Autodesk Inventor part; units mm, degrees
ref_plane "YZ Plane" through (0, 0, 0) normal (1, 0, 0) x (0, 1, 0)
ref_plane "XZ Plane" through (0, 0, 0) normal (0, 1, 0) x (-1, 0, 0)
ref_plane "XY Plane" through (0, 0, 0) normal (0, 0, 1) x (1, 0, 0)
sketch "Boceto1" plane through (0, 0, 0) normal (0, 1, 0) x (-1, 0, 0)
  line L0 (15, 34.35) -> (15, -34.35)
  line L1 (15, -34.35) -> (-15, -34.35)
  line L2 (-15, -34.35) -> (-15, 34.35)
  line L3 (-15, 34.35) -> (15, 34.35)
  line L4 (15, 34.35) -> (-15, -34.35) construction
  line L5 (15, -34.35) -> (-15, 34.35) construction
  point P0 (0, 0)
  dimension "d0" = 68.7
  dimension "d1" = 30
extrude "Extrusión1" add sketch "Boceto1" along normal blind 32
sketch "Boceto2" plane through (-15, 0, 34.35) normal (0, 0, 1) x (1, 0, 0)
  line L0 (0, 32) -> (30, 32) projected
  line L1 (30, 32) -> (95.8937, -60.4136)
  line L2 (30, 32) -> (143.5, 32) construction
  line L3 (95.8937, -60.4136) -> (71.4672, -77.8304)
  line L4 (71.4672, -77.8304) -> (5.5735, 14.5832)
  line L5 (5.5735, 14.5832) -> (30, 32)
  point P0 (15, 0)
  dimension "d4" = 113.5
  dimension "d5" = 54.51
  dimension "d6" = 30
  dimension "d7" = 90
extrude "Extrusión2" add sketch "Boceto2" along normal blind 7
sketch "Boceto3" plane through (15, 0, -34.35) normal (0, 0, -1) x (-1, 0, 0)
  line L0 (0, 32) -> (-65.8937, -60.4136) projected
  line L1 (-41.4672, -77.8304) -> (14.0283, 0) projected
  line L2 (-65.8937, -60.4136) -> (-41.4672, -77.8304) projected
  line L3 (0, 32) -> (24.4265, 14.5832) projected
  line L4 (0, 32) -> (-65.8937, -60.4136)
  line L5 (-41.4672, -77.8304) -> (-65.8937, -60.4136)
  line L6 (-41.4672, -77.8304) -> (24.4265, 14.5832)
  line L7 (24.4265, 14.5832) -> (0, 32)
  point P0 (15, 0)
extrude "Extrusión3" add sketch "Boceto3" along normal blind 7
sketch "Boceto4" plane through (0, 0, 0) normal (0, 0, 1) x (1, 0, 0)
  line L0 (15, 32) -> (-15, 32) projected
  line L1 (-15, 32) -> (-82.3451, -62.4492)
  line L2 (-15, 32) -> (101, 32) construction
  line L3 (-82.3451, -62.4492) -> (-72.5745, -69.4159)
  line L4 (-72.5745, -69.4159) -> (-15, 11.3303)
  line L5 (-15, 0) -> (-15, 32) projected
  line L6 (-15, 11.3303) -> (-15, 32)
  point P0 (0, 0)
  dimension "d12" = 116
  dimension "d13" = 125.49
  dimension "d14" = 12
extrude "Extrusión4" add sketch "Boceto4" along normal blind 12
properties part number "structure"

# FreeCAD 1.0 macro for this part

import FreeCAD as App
import Part
import Sketcher

V = App.Vector
Q = App.Units.Quantity


def add_polygon(sketch, points):
    """Adds a closed chain of lines whose ends are joined by coincident constraints."""
    first, n = sketch.GeometryCount, len(points)
    for a, b in zip(points, points[1:] + points[:1]):
        sketch.addGeometry(Part.LineSegment(App.Vector(*a, 0), App.Vector(*b, 0)), False)
    for i in range(n):
        sketch.addConstraint(Sketcher.Constraint("Coincident", first + i, 2, first + (i + 1) % n, 1))

doc = App.newDocument("Part")
body = doc.addObject("PartDesign::Body", "Body")

# Sketch on XZ plane
sketch1 = body.newObject("Sketcher::SketchObject", "Sketch")
sketch1.AttachmentSupport = (doc.getObject("XZ_Plane"), [""])
sketch1.MapMode = "FlatFace"
add_polygon(sketch1, [(-15, -34), (-15, 34), (15, 34), (15, -34)])  # lines 0-3
sketch1.addConstraint([
    Sketcher.Constraint("Vertical", 0),
    Sketcher.Constraint("Horizontal", 1),
    Sketcher.Constraint("Vertical", 2),
    Sketcher.Constraint("Horizontal", 3),
    Sketcher.Constraint("Symmetric", 0, 2, 2, 2, -1, 1),
    Sketcher.Constraint("DistanceX", 1, 1, 1, 2, 30.0),
    Sketcher.Constraint("DistanceY", 0, 1, 0, 2, 68.7),
])
pad1 = body.newObject("PartDesign::Pad", "Pad")
pad1.Profile = sketch1
pad1.Length = 32
pad1.Reversed = True

# Sketch on XY plane
sketch2 = body.newObject("Sketcher::SketchObject", "Sketch001")
sketch2.AttachmentSupport = (doc.getObject("XY_Plane"), [""])
sketch2.MapMode = "FlatFace"
sketch2.AttachmentOffset = App.Placement(V(0, 0, 34.35), App.Rotation())
add_polygon(sketch2, [(81, -60), (15, 32), (-9, 15), (56, -78)])  # lines 0-3
sketch2.addConstraint([
    Sketcher.Constraint("Perpendicular", 0, 1),
    Sketcher.Constraint("Perpendicular", 1, 2),
    Sketcher.Constraint("Perpendicular", 2, 3),
    Sketcher.Constraint("Distance", 1, 30.0),
    Sketcher.Constraint("Distance", 0, 113.5),
    Sketcher.Constraint("Angle", 2, Q("-54.51 deg")),
    Sketcher.Constraint("DistanceX", -1, 1, 0, 2, 15.0),
    Sketcher.Constraint("DistanceY", -1, 1, 0, 2, 32.0),
])
pad2 = body.newObject("PartDesign::Pad", "Pad001")
pad2.Profile = sketch2
pad2.Length = 7

# Sketch on XY plane
sketch3 = body.newObject("Sketcher::SketchObject", "Sketch002")
sketch3.AttachmentSupport = (doc.getObject("XY_Plane"), [""])
sketch3.MapMode = "FlatFace"
sketch3.AttachmentOffset = App.Placement(V(0, 0, -34.35), App.Rotation())
add_polygon(sketch3, [(-9, 15), (15, 32), (81, -60), (56, -78), (1, 0)])  # lines 0-4
sketch3.addConstraint([
    Sketcher.Constraint("PointOnObject", 3, 2, -1),
    Sketcher.Constraint("Perpendicular", 0, 1),
    Sketcher.Constraint("Perpendicular", 1, 2),
    Sketcher.Constraint("Perpendicular", 2, 3),
    Sketcher.Constraint("Parallel", 3, 4),
    Sketcher.Constraint("Distance", 0, 30.0),
    Sketcher.Constraint("DistanceX", -1, 1, 0, 2, 15.0),
    Sketcher.Constraint("DistanceY", -1, 1, 0, 2, 32.0),
    Sketcher.Constraint("Distance", 1, 113.5),
    Sketcher.Constraint("Angle", 0, Q("35.49 deg")),
])
pad3 = body.newObject("PartDesign::Pad", "Pad002")
pad3.Profile = sketch3
pad3.Length = 7
pad3.Reversed = True

# Sketch on XY plane
sketch4 = body.newObject("Sketcher::SketchObject", "Sketch003")
sketch4.AttachmentSupport = (doc.getObject("XY_Plane"), [""])
sketch4.MapMode = "FlatFace"
add_polygon(sketch4, [(-15, 11), (-15, 32), (-82, -62), (-73, -69)])  # lines 0-3
sketch4.addConstraint([
    Sketcher.Constraint("Vertical", 0),
    Sketcher.Constraint("Perpendicular", 1, 2),
    Sketcher.Constraint("Perpendicular", 2, 3),
    Sketcher.Constraint("Distance", 1, 116.0),
    Sketcher.Constraint("Distance", 2, 12.0),
    Sketcher.Constraint("Angle", 1, Q("-125.49 deg")),
    Sketcher.Constraint("DistanceX", 0, 2, -1, 1, 15.0),
    Sketcher.Constraint("DistanceY", -1, 1, 0, 2, 32.0),
])
pad4 = body.newObject("PartDesign::Pad", "Pad003")
pad4.Profile = sketch4
pad4.Length = 12

doc.recompute()
